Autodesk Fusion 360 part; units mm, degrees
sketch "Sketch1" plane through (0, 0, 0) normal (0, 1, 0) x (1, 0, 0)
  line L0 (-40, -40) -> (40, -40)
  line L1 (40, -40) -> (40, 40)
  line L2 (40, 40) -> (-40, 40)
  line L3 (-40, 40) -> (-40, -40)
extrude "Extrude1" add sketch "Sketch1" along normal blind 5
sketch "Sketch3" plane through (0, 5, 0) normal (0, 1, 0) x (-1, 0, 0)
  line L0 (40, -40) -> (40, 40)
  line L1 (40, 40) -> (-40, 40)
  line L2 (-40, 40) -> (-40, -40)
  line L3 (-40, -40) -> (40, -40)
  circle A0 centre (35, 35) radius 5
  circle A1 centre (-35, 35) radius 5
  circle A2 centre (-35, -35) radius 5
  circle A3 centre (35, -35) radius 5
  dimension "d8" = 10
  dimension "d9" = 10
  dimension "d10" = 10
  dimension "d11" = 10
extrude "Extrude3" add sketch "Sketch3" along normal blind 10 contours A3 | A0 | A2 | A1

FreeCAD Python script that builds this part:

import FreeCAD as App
import Part
import Sketcher
Q = App.Units.Quantity


def add_polygon(sketch, points):
    """Adds a closed chain of lines whose ends are joined by coincident constraints."""
    first, n = sketch.GeometryCount, len(points)
    for a, b in zip(points, points[1:] + points[:1]):
        sketch.addGeometry(Part.LineSegment(App.Vector(*a, 0), App.Vector(*b, 0)), False)
    for i in range(n):
        sketch.addConstraint(Sketcher.Constraint("Coincident", first + i, 2, first + (i + 1) % n, 1))

doc = App.newDocument("Part")
body = doc.addObject("PartDesign::Body", "Body")

sketch1 = body.newObject("Sketcher::SketchObject", "Sketch")
sketch1.AttachmentSupport = (doc.getObject("XZ_Plane"), [""])
sketch1.MapMode = "FlatFace"
add_polygon(sketch1, [(-40, -40), (-40, 40), (40, 40), (40, -40)])
sketch1.addConstraint([
    Sketcher.Constraint("Vertical", 0),
    Sketcher.Constraint("Horizontal", 1),
    Sketcher.Constraint("Vertical", 2),
    Sketcher.Constraint("Horizontal", 3),
    Sketcher.Constraint("Symmetric", 0, 2, 2, 2, -1, 1),
    Sketcher.Constraint("Equal", 3, 0),
    Sketcher.Constraint("DistanceX", 1, 1, 1, 2, Q("80 mm")),
])
pad1 = body.newObject("PartDesign::Pad", "Pad")
pad1.Profile = sketch1
pad1.Length = 5
pad1.Reversed = True

sketch2 = body.newObject("Sketcher::SketchObject", "Sketch001")
sketch2.AttachmentSupport = (doc.getObject("XZ_Plane"), [""])
sketch2.MapMode = "FlatFace"
sketch2.AttachmentOffset = App.Placement(App.Vector(0, 0, -5), App.Rotation())
sketch2.addGeometry([
    Part.Circle(App.Vector(-35, -35, 0), App.Vector(0, 0, 1), 5),
    Part.Circle(App.Vector(-35, 35, 0), App.Vector(0, 0, 1), 5),
    Part.Circle(App.Vector(35, -35, 0), App.Vector(0, 0, 1), 5),
    Part.Circle(App.Vector(35, 35, 0), App.Vector(0, 0, 1), 5),
], False)
sketch2.addConstraint([
    Sketcher.Constraint("Equal", 0, 1),
    Sketcher.Constraint("Equal", 1, 2),
    Sketcher.Constraint("Equal", 2, 3),
    Sketcher.Constraint("Symmetric", 1, 3, 2, 3, -1, 1),
    Sketcher.Constraint("Symmetric", 0, 3, 3, 3, -1, 1),
    Sketcher.Constraint("Symmetric", 0, 3, 2, 3, -2),
    Sketcher.Constraint("Diameter", 0, Q("10 mm")),
    Sketcher.Constraint("DistanceX", 0, 3, -1, 1, Q("35 mm")),
    Sketcher.Constraint("DistanceY", 0, 3, -1, 1, Q("35 mm")),
])
pad2 = body.newObject("PartDesign::Pad", "Pad001")
pad2.Profile = sketch2
pad2.Length = 10
pad2.Reversed = True

doc.recompute()
